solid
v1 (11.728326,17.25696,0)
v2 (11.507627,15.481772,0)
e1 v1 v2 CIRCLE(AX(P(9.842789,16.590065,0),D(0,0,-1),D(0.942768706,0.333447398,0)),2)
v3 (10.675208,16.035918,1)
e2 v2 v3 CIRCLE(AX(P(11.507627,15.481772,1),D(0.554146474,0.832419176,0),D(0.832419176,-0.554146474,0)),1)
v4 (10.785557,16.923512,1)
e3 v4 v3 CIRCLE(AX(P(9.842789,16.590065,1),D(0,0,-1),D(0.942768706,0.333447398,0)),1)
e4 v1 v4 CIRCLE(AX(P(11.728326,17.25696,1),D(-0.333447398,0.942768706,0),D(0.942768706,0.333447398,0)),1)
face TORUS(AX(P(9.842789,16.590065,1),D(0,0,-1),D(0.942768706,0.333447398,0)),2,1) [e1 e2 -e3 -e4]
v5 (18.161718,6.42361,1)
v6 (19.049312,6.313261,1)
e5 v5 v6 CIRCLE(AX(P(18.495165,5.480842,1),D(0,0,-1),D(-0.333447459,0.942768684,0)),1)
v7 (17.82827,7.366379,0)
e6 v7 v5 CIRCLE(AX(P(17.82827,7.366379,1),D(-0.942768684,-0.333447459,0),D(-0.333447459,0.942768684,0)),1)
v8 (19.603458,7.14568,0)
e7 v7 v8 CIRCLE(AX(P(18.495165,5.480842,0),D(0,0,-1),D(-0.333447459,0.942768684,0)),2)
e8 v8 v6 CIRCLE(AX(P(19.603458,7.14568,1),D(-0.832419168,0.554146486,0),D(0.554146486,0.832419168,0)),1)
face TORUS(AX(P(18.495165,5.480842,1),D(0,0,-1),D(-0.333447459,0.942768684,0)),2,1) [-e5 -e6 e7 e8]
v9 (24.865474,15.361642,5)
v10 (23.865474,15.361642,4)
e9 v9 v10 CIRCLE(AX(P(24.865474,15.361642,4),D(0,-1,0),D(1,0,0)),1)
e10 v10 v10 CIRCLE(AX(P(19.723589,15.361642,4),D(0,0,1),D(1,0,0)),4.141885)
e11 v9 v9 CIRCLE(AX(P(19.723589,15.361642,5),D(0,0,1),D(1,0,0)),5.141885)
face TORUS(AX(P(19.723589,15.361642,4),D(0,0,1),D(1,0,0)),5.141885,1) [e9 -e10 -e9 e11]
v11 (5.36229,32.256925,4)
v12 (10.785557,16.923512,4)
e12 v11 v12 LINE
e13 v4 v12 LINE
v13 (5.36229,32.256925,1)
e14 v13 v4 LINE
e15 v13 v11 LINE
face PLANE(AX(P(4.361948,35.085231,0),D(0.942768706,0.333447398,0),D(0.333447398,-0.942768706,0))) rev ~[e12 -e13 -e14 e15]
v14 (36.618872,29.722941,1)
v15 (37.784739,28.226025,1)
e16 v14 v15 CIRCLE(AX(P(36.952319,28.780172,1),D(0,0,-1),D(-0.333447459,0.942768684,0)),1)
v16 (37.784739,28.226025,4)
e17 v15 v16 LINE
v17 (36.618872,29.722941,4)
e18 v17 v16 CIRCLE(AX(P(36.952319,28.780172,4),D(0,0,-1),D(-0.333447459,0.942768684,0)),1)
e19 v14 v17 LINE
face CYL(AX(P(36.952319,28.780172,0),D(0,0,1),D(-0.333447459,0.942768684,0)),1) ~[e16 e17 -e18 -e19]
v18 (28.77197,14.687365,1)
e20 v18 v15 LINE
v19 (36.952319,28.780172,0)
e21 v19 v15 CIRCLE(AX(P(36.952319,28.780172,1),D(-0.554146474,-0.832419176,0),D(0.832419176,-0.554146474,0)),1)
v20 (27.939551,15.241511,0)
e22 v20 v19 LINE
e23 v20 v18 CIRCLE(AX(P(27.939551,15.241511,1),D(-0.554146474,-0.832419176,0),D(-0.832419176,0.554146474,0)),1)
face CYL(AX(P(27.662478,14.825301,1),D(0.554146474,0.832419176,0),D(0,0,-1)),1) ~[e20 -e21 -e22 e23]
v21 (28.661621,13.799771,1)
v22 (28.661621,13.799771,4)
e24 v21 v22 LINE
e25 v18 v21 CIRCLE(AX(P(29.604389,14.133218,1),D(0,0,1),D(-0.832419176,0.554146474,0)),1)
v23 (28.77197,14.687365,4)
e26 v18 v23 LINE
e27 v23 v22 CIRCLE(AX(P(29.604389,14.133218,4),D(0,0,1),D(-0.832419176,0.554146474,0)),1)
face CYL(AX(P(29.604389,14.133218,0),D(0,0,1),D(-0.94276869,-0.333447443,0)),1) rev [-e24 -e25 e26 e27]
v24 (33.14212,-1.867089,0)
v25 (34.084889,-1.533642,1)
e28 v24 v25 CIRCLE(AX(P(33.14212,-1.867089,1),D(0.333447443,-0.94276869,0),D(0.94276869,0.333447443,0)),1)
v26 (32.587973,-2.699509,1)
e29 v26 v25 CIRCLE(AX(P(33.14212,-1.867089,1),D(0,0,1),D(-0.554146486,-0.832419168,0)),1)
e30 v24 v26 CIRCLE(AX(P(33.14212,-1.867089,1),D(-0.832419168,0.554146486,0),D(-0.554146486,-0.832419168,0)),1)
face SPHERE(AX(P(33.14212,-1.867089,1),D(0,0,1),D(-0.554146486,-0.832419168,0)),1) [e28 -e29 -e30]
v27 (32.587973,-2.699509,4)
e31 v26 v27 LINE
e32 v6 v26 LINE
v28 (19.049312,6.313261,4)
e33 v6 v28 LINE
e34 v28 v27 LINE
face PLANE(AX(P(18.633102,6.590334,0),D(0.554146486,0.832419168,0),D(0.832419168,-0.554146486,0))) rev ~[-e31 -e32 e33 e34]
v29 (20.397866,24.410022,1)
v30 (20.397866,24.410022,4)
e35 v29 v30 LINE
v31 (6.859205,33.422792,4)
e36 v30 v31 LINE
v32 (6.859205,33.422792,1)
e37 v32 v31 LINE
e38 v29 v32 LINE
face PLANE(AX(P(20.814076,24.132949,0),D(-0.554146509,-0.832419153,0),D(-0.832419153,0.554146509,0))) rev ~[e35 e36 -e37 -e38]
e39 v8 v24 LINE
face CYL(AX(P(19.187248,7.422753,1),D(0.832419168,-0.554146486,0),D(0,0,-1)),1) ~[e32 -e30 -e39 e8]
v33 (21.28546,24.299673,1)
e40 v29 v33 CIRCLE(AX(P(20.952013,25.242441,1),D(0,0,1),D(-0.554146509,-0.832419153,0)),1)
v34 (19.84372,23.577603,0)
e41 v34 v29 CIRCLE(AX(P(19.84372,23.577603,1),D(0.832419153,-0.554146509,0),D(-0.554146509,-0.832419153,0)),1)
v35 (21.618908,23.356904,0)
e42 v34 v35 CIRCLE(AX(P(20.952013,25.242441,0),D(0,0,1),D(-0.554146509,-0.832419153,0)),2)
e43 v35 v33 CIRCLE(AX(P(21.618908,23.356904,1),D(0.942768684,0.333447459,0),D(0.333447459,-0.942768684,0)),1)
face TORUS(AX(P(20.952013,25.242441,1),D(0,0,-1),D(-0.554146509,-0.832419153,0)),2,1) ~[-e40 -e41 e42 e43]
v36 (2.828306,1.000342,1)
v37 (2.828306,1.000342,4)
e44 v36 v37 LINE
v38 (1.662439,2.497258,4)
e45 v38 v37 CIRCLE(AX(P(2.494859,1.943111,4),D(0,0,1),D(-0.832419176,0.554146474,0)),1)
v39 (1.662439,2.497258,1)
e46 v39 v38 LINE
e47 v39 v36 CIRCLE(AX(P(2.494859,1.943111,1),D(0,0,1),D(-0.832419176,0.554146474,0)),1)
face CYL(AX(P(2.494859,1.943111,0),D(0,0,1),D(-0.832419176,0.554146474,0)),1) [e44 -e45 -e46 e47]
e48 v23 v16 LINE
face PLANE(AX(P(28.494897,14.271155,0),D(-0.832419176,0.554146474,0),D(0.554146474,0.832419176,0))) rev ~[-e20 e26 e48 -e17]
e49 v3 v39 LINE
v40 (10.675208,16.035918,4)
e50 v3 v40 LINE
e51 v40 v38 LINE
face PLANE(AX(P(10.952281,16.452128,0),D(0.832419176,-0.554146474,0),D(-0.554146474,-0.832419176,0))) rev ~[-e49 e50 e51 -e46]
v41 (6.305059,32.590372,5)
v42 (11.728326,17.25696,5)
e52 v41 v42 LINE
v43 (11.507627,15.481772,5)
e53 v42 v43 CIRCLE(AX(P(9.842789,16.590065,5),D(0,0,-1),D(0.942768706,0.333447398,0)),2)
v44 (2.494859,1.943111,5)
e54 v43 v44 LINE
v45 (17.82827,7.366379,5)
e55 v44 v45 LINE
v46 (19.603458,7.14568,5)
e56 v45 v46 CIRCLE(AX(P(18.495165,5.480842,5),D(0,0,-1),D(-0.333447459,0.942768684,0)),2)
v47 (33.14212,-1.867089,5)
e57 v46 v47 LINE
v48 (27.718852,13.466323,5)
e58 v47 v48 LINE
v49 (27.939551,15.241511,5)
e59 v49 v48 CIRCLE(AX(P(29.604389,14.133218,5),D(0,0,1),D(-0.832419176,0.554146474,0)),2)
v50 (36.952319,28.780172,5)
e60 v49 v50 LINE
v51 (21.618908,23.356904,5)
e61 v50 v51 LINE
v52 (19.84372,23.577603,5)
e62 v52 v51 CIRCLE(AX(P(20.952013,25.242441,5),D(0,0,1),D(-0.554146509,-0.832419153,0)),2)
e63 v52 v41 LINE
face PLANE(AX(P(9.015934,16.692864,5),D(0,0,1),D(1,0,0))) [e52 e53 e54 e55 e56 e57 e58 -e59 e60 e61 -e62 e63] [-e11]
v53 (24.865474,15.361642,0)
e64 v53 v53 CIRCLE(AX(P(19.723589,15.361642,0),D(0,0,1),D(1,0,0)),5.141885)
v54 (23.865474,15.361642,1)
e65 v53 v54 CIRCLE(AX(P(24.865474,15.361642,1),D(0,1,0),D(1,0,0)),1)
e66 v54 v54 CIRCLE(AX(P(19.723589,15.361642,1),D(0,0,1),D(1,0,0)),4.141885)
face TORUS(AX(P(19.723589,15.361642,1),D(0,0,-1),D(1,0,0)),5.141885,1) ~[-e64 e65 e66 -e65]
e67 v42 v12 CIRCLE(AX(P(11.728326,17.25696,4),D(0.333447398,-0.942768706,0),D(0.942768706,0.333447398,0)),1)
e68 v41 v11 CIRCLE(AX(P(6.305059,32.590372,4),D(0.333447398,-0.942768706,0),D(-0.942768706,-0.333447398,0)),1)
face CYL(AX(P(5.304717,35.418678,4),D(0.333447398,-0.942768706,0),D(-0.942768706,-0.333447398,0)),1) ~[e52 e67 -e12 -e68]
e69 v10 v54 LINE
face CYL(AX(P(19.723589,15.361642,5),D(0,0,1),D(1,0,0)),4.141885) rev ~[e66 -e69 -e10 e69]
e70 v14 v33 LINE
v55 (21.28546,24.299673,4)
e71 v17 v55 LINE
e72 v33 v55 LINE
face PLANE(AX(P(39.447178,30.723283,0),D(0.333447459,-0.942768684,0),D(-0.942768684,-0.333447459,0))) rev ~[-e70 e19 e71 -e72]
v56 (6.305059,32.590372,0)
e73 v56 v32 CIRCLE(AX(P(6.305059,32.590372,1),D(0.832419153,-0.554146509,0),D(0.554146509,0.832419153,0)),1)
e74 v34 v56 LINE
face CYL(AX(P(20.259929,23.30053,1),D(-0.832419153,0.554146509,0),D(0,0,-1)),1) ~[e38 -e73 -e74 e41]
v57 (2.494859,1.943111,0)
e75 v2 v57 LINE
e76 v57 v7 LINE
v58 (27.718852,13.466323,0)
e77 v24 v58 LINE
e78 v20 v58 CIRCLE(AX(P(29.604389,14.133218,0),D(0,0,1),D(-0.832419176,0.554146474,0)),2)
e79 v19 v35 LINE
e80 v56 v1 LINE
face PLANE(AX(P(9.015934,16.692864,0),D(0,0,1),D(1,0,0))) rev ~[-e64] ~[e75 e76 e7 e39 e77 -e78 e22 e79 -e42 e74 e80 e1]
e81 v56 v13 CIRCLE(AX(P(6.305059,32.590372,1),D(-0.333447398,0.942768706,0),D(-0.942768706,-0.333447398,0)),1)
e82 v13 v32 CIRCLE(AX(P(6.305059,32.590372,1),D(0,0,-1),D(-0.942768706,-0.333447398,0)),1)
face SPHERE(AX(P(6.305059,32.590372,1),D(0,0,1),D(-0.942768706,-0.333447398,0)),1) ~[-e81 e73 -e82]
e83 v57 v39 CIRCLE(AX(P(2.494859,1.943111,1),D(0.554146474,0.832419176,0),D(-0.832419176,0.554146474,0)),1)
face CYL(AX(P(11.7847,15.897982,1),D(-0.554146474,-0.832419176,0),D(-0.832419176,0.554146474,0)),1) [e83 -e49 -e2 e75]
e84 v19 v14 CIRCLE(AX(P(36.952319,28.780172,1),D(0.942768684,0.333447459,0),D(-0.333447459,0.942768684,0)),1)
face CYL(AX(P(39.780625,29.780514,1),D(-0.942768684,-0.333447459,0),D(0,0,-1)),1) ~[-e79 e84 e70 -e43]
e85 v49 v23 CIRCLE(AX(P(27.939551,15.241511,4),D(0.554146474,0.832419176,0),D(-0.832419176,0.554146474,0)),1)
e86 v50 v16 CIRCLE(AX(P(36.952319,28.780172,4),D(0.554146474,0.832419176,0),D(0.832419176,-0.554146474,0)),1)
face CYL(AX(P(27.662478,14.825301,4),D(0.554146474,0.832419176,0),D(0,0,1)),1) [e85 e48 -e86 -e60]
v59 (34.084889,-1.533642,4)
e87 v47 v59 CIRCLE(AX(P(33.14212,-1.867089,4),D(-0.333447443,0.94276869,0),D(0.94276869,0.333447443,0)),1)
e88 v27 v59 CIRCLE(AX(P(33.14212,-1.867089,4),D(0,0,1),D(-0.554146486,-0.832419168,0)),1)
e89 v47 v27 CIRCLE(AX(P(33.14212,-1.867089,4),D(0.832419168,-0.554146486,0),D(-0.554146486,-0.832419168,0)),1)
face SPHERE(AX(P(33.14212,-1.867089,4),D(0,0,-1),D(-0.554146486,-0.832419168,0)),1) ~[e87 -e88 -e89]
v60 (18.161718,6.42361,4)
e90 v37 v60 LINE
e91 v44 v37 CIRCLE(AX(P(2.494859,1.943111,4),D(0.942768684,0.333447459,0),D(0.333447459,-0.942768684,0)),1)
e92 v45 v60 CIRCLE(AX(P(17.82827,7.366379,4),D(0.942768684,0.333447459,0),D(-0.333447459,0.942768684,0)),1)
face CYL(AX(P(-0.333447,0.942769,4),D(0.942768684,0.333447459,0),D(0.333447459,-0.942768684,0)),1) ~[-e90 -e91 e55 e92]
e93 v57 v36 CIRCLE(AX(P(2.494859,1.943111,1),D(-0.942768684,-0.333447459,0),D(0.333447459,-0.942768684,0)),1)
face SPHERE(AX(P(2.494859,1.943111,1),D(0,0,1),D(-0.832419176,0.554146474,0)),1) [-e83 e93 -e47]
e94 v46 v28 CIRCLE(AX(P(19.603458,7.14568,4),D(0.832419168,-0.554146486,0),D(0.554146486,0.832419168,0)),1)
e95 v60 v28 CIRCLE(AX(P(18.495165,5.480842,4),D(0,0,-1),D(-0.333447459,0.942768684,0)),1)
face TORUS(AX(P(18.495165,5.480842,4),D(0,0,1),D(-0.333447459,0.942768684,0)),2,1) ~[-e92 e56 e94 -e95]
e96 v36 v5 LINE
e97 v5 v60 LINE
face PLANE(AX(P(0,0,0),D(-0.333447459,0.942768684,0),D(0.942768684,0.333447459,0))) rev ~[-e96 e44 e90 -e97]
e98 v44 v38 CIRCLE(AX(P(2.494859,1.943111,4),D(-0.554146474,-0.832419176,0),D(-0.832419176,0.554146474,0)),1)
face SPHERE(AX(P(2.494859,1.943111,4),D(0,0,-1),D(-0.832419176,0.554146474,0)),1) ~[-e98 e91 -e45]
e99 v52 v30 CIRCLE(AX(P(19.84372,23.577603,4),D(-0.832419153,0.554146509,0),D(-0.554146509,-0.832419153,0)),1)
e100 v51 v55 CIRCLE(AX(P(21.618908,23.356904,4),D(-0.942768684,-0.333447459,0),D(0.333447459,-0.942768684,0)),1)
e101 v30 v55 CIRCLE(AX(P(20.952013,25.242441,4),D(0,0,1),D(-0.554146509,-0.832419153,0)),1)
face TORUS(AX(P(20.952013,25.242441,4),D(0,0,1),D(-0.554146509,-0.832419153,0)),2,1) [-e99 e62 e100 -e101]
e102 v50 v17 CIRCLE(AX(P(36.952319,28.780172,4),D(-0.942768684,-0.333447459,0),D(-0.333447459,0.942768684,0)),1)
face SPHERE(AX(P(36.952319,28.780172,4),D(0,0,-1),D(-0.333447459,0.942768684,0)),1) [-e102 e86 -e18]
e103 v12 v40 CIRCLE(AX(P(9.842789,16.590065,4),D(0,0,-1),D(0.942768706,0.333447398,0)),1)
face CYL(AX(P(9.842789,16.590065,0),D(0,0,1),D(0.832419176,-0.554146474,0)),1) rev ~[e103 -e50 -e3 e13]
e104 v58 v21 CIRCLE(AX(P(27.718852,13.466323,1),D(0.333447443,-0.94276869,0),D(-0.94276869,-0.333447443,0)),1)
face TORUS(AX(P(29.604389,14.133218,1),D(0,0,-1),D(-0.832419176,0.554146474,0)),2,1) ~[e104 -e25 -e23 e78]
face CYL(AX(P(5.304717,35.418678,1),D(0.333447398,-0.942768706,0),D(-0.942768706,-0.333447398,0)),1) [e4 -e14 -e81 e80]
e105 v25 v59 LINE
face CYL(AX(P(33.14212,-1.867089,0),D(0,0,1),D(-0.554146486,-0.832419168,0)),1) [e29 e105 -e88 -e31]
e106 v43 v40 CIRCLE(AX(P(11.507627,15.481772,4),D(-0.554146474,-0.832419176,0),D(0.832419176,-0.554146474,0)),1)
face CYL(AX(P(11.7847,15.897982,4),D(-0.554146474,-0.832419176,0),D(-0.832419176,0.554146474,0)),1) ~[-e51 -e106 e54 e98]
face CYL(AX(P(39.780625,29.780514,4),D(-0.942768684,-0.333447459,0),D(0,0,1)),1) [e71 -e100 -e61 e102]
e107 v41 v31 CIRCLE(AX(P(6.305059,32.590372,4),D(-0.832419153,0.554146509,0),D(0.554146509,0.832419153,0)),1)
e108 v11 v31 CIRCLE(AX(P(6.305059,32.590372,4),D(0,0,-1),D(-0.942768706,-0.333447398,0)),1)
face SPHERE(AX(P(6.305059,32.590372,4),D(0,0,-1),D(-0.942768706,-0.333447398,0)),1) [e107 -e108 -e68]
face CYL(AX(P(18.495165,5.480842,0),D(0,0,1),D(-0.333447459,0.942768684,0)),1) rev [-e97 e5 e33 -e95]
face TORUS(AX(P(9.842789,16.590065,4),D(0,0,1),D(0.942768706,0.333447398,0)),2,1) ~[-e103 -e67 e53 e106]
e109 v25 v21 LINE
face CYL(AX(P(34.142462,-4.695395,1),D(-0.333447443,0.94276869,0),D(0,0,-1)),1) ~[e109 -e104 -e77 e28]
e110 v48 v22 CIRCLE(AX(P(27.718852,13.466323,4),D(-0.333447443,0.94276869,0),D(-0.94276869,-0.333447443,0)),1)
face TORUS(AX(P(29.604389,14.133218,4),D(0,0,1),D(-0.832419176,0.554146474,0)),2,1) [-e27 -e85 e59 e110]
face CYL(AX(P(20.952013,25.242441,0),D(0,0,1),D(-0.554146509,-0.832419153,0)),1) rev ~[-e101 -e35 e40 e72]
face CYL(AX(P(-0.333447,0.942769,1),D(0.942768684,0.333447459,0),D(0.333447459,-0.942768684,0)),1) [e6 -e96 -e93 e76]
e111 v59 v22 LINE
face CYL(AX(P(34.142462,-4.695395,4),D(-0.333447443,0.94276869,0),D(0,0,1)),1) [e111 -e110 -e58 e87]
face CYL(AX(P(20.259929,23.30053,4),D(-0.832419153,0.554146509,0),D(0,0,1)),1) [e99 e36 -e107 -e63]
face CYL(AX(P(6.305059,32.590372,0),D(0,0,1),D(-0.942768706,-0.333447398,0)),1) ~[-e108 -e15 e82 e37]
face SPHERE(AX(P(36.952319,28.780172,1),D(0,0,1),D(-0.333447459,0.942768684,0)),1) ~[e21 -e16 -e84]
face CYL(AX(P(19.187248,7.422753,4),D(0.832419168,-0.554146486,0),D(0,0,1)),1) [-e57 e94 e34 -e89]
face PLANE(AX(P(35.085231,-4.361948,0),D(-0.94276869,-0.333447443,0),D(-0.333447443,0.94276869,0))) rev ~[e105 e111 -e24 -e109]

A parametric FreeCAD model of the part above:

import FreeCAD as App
import Part
import Sketcher

V = App.Vector


def add_polygon(sketch, points):
    """Adds a closed chain of lines whose ends are joined by coincident constraints."""
    first, n = sketch.GeometryCount, len(points)
    for a, b in zip(points, points[1:] + points[:1]):
        sketch.addGeometry(Part.LineSegment(App.Vector(*a, 0), App.Vector(*b, 0)), False)
    for i in range(n):
        sketch.addConstraint(Sketcher.Constraint("Coincident", first + i, 2, first + (i + 1) % n, 1))

doc = App.newDocument("Part")
body = doc.addObject("PartDesign::Body", "Body")

# Sketch on XY plane
sketch1 = body.newObject("Sketcher::SketchObject", "Sketch")
sketch1.AttachmentSupport = (doc.getObject("XY_Plane"), [""])
sketch1.MapMode = "FlatFace"
add_polygon(sketch1, [(11, 16), (0, 0), (19, 7), (35, -4), (28, 14), (39, 31), (21, 24), (4, 35)])  # lines 0-7
sketch1.addConstraint([
    Sketcher.Constraint("Coincident", 0, 2, -1, 1),
    Sketcher.Constraint("Perpendicular", 0, 2),
    Sketcher.Constraint("Perpendicular", 1, 3),
    Sketcher.Constraint("Perpendicular", 2, 4),
    Sketcher.Constraint("Perpendicular", 3, 5),
    Sketcher.Constraint("Perpendicular", 4, 6),
    Sketcher.Constraint("Perpendicular", 5, 7),
    Sketcher.Constraint("Equal", 0, 1),
    Sketcher.Constraint("Equal", 1, 2),
    Sketcher.Constraint("Equal", 2, 3),
    Sketcher.Constraint("Equal", 3, 4),
    Sketcher.Constraint("Equal", 4, 5),
    Sketcher.Constraint("DistanceX", -1, 1, 2, 2, 35.085231),
    Sketcher.Constraint("DistanceY", -1, 1, 5, 2, 24.132949),
    Sketcher.Constraint("DistanceX", 1, 2, 2, 2, 16.452129),
])
pad1 = body.newObject("PartDesign::Pad", "Pad")
pad1.Profile = sketch1
pad1.Length = 5

# Sketch on XY plane
sketch2 = body.newObject("Sketcher::SketchObject", "Sketch001")
sketch2.AttachmentSupport = (doc.getObject("XY_Plane"), [""])
sketch2.MapMode = "FlatFace"
sketch2.AttachmentOffset = App.Placement(V(0, 0, 5), App.Rotation())
sketch2.addGeometry(Part.Circle(V(19.7, 15.4, 0), V(0, 0, 1), 4.1), False)
sketch2.addConstraint([
    Sketcher.Constraint("Diameter", 0, 8.28377),
    Sketcher.Constraint("DistanceX", -1, 1, 0, 3, 19.723589),
    Sketcher.Constraint("DistanceY", -1, 1, 0, 3, 15.361642),
])
pocket1 = body.newObject("PartDesign::Pocket", "Pocket")
pocket1.Profile = sketch2
pocket1.Length = 25
doc.recompute()

fillet = body.newObject("PartDesign::Fillet", "Fillet")
fillet.Base = (pocket1, ["Edge1"])
fillet.UseAllEdges = True
fillet.Radius = 1

doc.recompute()
